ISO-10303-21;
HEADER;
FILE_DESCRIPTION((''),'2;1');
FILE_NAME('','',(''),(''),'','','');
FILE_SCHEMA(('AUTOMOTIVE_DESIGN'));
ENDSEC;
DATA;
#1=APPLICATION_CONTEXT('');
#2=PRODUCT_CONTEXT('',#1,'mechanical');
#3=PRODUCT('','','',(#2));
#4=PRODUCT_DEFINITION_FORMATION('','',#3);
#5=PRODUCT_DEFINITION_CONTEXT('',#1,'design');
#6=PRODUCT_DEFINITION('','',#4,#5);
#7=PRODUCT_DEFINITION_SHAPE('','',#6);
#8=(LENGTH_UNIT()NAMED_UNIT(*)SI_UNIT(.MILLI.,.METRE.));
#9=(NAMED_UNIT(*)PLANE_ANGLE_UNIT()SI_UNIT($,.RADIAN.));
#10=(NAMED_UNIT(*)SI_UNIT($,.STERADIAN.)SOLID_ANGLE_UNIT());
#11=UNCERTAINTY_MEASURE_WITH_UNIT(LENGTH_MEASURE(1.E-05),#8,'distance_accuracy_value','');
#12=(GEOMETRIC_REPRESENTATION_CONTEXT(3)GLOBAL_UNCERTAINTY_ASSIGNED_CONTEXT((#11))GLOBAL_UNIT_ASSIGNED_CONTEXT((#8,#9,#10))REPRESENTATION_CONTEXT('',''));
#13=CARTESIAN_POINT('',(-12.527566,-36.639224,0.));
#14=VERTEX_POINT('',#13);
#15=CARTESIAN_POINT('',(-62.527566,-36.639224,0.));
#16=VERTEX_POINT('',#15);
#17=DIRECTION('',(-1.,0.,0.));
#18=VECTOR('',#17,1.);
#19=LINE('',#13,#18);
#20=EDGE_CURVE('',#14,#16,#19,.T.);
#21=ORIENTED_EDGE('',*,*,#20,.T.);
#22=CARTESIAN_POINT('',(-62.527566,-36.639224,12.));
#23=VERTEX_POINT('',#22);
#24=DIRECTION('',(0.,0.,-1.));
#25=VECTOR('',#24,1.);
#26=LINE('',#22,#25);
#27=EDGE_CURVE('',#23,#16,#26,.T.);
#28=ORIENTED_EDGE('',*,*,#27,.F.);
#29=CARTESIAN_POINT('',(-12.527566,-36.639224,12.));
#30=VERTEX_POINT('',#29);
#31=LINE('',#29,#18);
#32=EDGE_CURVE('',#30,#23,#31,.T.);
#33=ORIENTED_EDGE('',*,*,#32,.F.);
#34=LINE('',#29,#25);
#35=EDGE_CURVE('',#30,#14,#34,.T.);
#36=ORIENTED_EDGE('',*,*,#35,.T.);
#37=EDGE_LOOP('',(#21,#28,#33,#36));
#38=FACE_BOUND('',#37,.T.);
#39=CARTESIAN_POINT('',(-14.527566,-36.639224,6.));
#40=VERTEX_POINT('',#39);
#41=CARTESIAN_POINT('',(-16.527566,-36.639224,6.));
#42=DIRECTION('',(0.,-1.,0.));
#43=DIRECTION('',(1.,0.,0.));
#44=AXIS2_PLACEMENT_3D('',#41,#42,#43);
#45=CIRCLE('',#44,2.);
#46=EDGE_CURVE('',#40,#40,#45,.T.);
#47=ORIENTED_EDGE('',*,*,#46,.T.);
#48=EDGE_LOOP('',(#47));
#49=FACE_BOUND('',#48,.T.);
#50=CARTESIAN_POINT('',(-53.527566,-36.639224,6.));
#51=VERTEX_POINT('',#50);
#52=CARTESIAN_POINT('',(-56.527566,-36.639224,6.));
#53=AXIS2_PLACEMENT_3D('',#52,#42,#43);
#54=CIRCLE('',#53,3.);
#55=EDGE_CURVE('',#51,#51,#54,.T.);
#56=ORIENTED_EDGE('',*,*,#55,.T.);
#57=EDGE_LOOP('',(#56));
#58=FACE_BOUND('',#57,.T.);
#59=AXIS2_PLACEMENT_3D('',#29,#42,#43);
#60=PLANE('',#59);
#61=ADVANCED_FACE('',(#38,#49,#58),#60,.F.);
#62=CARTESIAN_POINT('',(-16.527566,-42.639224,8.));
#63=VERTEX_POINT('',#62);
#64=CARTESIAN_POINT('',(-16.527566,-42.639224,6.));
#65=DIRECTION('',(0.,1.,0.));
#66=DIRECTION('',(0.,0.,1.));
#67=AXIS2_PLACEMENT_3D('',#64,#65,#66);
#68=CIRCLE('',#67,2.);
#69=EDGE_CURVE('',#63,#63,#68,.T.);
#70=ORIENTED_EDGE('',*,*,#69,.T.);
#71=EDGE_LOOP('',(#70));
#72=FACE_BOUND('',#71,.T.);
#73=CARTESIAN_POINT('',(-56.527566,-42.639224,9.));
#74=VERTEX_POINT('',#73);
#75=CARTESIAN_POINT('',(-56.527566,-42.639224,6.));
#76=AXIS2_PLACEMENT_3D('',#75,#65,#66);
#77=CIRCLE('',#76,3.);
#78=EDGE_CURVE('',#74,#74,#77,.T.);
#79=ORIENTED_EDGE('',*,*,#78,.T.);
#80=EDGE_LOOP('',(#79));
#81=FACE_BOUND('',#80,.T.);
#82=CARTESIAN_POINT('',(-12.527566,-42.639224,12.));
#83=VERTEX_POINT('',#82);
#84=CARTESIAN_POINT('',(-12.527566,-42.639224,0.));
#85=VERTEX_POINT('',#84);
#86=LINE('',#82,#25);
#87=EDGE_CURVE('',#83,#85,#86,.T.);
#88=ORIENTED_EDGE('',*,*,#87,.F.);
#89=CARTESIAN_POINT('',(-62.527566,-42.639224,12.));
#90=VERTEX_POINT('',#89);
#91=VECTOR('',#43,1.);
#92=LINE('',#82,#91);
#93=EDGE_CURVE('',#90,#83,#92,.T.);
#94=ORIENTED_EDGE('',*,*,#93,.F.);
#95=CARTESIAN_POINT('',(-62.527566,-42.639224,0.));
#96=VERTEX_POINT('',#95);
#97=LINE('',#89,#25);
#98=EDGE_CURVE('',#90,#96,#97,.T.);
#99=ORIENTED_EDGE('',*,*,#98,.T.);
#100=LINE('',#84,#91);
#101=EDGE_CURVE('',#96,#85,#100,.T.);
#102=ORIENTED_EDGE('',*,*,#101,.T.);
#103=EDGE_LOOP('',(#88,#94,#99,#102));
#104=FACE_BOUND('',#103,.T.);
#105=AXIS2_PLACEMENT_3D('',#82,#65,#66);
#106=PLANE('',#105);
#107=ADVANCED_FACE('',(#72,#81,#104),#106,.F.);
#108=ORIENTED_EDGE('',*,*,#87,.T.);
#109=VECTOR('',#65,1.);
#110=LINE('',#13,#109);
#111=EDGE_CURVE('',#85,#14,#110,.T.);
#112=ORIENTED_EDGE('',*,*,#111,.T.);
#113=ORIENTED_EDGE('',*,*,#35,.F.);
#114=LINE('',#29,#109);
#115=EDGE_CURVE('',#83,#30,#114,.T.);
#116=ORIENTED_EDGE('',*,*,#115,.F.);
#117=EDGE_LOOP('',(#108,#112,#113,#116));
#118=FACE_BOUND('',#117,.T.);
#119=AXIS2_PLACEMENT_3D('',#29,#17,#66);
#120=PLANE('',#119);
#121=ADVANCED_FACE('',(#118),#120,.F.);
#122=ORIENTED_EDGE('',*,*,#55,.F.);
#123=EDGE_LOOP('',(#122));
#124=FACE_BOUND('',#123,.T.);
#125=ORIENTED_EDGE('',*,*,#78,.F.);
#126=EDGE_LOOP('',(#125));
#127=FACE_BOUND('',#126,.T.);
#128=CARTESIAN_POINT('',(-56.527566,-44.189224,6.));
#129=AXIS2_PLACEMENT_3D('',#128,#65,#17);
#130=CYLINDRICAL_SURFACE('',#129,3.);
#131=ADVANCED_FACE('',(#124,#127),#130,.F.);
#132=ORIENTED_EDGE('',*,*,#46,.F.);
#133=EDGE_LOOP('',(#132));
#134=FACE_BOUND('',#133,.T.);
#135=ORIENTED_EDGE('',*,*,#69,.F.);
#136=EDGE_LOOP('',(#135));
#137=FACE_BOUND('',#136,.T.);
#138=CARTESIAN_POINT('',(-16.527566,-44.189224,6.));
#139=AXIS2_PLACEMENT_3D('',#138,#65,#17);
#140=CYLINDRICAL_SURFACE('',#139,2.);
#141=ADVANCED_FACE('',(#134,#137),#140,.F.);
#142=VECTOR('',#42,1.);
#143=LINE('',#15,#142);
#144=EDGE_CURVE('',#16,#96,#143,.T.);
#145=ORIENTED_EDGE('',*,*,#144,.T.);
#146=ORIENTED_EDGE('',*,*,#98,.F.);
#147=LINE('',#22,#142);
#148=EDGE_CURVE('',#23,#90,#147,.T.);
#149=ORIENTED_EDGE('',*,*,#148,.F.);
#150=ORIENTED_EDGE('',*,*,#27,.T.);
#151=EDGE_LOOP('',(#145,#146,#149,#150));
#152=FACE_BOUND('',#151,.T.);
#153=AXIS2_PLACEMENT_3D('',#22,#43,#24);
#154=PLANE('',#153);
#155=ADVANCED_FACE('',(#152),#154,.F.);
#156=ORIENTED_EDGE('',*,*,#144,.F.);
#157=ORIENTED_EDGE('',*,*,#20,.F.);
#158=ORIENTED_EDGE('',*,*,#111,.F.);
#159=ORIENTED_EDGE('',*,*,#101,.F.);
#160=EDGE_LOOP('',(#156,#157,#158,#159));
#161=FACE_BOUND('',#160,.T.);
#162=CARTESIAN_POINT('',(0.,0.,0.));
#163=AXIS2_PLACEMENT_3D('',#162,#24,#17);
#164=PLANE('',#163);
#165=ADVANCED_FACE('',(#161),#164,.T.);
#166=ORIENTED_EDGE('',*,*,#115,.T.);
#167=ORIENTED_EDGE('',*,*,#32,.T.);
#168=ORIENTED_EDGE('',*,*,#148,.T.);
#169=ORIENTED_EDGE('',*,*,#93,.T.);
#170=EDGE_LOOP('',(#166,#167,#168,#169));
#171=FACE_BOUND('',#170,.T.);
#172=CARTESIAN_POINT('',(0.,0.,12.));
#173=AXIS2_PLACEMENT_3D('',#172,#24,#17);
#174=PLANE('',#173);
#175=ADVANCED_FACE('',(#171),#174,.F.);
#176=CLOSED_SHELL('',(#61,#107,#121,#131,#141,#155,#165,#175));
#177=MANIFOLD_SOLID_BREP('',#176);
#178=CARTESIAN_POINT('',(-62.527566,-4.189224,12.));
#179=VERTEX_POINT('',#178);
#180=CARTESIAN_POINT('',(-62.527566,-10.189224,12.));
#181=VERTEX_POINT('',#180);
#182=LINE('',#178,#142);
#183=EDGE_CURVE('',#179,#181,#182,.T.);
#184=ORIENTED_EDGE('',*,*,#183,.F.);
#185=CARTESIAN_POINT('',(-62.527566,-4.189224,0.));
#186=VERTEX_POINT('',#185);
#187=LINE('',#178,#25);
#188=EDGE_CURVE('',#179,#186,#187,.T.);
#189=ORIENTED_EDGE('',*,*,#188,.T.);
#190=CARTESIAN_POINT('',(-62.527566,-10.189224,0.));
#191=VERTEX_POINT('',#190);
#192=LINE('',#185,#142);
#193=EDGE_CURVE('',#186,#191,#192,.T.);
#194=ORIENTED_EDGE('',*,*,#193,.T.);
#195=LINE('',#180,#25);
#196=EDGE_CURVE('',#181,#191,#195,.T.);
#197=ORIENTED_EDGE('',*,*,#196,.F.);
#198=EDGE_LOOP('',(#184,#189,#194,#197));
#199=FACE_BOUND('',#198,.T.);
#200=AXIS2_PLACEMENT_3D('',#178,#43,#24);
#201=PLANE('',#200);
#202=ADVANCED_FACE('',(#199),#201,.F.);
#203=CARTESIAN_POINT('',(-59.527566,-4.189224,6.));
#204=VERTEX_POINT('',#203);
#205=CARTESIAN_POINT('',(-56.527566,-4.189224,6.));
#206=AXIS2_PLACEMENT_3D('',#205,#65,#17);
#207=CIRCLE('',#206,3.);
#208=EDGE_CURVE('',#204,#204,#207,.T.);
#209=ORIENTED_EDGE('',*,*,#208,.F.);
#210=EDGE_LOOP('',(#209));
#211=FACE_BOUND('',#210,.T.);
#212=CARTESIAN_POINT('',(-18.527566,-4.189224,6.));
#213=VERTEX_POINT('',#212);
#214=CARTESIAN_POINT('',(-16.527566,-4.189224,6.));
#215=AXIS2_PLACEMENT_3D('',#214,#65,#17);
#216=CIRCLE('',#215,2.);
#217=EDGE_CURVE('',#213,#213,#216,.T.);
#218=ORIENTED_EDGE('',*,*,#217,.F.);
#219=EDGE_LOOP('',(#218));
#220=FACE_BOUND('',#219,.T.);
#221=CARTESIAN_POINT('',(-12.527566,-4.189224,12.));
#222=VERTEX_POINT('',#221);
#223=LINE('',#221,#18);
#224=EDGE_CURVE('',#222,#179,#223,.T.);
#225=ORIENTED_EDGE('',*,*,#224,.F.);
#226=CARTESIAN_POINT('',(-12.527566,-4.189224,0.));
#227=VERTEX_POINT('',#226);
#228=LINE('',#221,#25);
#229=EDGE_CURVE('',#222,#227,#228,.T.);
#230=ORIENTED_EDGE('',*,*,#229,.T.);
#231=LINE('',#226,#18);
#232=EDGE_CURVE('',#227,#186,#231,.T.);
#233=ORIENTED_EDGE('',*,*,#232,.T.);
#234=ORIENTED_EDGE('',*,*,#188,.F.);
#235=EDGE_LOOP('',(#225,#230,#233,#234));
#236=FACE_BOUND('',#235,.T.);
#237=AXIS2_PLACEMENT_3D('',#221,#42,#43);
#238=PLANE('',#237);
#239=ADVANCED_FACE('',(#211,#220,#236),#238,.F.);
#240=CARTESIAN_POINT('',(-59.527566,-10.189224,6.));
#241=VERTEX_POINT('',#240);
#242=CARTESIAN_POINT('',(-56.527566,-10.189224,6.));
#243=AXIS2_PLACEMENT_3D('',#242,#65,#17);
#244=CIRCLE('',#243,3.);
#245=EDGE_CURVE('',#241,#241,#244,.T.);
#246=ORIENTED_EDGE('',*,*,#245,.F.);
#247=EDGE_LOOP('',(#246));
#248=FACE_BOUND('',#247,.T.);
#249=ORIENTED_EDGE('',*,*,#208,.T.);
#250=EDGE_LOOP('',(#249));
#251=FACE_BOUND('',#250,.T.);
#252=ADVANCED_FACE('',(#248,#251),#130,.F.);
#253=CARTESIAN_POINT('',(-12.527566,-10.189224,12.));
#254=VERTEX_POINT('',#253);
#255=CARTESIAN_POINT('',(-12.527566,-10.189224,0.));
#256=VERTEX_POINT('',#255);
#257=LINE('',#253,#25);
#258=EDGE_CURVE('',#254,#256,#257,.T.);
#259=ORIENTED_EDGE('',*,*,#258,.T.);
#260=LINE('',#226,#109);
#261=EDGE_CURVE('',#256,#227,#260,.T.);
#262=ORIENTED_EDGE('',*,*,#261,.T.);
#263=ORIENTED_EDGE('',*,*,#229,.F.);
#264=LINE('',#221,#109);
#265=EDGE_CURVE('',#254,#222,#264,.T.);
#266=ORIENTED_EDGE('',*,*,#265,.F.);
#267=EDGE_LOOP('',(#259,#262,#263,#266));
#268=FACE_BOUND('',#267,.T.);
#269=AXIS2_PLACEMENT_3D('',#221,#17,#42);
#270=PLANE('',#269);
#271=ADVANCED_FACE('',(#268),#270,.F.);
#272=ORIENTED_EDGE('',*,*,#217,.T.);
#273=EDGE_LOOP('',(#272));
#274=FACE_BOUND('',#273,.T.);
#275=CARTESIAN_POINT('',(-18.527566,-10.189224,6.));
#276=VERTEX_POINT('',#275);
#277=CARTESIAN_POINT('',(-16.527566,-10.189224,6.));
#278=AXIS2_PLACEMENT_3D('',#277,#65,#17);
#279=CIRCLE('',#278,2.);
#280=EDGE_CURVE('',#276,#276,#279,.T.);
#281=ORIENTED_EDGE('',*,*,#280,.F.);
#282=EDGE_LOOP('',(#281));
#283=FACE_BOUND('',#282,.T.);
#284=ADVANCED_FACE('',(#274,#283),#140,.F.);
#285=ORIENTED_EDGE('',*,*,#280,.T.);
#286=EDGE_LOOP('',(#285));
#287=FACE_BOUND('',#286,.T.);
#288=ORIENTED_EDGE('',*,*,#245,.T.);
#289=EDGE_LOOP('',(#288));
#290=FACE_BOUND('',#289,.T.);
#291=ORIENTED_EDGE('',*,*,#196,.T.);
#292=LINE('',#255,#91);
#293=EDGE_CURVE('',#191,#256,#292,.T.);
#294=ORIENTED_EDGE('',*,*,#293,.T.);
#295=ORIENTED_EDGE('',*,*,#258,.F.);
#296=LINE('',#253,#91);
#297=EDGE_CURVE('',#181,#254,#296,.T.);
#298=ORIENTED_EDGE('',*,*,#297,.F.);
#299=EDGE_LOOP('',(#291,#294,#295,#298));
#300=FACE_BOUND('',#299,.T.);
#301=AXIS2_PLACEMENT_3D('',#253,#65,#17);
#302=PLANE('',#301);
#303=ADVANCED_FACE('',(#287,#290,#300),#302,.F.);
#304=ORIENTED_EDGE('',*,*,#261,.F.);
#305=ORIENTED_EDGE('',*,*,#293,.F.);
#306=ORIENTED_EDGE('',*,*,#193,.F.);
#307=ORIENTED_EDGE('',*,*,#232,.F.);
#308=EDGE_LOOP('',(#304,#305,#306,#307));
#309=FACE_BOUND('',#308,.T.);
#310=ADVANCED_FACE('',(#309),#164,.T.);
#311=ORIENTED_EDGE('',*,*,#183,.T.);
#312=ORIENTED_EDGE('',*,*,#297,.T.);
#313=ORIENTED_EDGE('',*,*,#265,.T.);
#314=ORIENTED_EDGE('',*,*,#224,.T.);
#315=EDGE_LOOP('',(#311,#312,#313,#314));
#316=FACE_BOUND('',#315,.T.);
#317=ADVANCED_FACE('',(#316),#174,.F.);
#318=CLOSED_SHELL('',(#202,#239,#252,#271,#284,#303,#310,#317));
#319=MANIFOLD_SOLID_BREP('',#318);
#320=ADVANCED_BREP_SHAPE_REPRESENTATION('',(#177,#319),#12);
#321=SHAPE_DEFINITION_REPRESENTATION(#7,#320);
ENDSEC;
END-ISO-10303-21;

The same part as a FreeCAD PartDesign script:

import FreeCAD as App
import Part
import Sketcher
from FreeCAD import Vector

doc = App.newDocument("Part")
body = doc.addObject("PartDesign::Body", "Body")

# Sketch on XY plane
sketch1 = body.newObject("Sketcher::SketchObject", "Sketch")
sketch1.AttachmentSupport = (doc.getObject("XY_Plane"), [""])
sketch1.MapMode = "FlatFace"
sketch1.addGeometry(Part.LineSegment(Vector(-63, -4, 0), Vector(-63, -10, 0)), False)
sketch1.addGeometry(Part.LineSegment(Vector(-63, -10, 0), Vector(-13, -10, 0)), False)
sketch1.addGeometry(Part.LineSegment(Vector(-13, -10, 0), Vector(-13, -4, 0)), False)
sketch1.addGeometry(Part.LineSegment(Vector(-13, -4, 0), Vector(-63, -4, 0)), False)
sketch1.addConstraint(Sketcher.Constraint("Coincident", 0, 2, 1, 1))
sketch1.addConstraint(Sketcher.Constraint("Coincident", 1, 2, 2, 1))
sketch1.addConstraint(Sketcher.Constraint("Coincident", 2, 2, 3, 1))
sketch1.addConstraint(Sketcher.Constraint("Coincident", 3, 2, 0, 1))
sketch1.addConstraint(Sketcher.Constraint("Vertical", 0))
sketch1.addConstraint(Sketcher.Constraint("Horizontal", 1))
sketch1.addConstraint(Sketcher.Constraint("Vertical", 2))
sketch1.addConstraint(Sketcher.Constraint("Horizontal", 3))
sketch1.addConstraint(Sketcher.Constraint("DistanceX", 1, 1, 1, 2, 50.0))
sketch1.addConstraint(Sketcher.Constraint("DistanceY", 0, 2, 0, 1, 6.0))
sketch1.addConstraint(Sketcher.Constraint("DistanceX", 0, 2, -1, 1, 62.527566))
sketch1.addConstraint(Sketcher.Constraint("DistanceY", 0, 2, -1, 1, 10.189224))
pad1 = body.newObject("PartDesign::Pad", "Pad")
pad1.Profile = sketch1
pad1.Length = 12
body2 = doc.addObject("PartDesign::Body", "Body001")

# Sketch on XY plane
sketch2 = body2.newObject("Sketcher::SketchObject", "Sketch001")
sketch2.AttachmentSupport = (doc.getObject("XY_Plane001"), [""])
sketch2.MapMode = "FlatFace"
sketch2.addGeometry(Part.LineSegment(Vector(-63, -37, 0), Vector(-63, -43, 0)), False)
sketch2.addGeometry(Part.LineSegment(Vector(-63, -43, 0), Vector(-13, -43, 0)), False)
sketch2.addGeometry(Part.LineSegment(Vector(-13, -43, 0), Vector(-13, -37, 0)), False)
sketch2.addGeometry(Part.LineSegment(Vector(-13, -37, 0), Vector(-63, -37, 0)), False)
sketch2.addConstraint(Sketcher.Constraint("Coincident", 0, 2, 1, 1))
sketch2.addConstraint(Sketcher.Constraint("Coincident", 1, 2, 2, 1))
sketch2.addConstraint(Sketcher.Constraint("Coincident", 2, 2, 3, 1))
sketch2.addConstraint(Sketcher.Constraint("Coincident", 3, 2, 0, 1))
sketch2.addConstraint(Sketcher.Constraint("Vertical", 0))
sketch2.addConstraint(Sketcher.Constraint("Horizontal", 1))
sketch2.addConstraint(Sketcher.Constraint("Vertical", 2))
sketch2.addConstraint(Sketcher.Constraint("Horizontal", 3))
sketch2.addConstraint(Sketcher.Constraint("DistanceX", 1, 1, 1, 2, 50.0))
sketch2.addConstraint(Sketcher.Constraint("DistanceY", 0, 2, 0, 1, 6.0))
sketch2.addConstraint(Sketcher.Constraint("DistanceX", 0, 2, -1, 1, 62.527566))
sketch2.addConstraint(Sketcher.Constraint("DistanceY", 0, 2, -1, 1, 42.639224))
pad2 = body2.newObject("PartDesign::Pad", "Pad001")
pad2.Profile = sketch2
pad2.Length = 12
body3 = doc.addObject("PartDesign::Body", "Body002")
body3.AllowCompound = True

# Sketch on XZ plane
sketch3 = body3.newObject("Sketcher::SketchObject", "Sketch002")
sketch3.AttachmentSupport = (doc.getObject("XZ_Plane002"), [""])
sketch3.MapMode = "FlatFace"
sketch3.AttachmentOffset = App.Placement(Vector(0, 0, 4.189224), App.Rotation())
sketch3.addGeometry(Part.Circle(Vector(-56.5, 6, 0), Vector(0, 0, 1), 3), False)
sketch3.addGeometry(Part.Circle(Vector(-16.5, 6, 0), Vector(0, 0, 1), 2), False)
sketch3.addConstraint(Sketcher.Constraint("Horizontal", 0, 3, 1, 3))
sketch3.addConstraint(Sketcher.Constraint("Diameter", 0, 6.0))
sketch3.addConstraint(Sketcher.Constraint("Diameter", 1, 4.0))
sketch3.addConstraint(Sketcher.Constraint("DistanceY", -1, 1, 0, 3, 6.0))
sketch3.addConstraint(Sketcher.Constraint("DistanceX", 0, 3, 1, 3, 40.0))
sketch3.addConstraint(Sketcher.Constraint("DistanceX", 0, 3, -1, 1, 56.527566))
pad3 = body3.newObject("PartDesign::Pad", "Pad002")
pad3.Profile = sketch3
pad3.Length = 40
doc.recompute()

body4 = doc.addObject("PartDesign::Body", "Body003")
body4.BaseFeature = body3
boolean = body.newObject("PartDesign::Boolean", "Boolean")
boolean.Type = "Cut"
boolean.addObjects([body4])
doc.recompute()

boolean2 = body2.newObject("PartDesign::Boolean", "Boolean001")
boolean2.Type = "Cut"
boolean2.addObjects([body3])

doc.recompute()
